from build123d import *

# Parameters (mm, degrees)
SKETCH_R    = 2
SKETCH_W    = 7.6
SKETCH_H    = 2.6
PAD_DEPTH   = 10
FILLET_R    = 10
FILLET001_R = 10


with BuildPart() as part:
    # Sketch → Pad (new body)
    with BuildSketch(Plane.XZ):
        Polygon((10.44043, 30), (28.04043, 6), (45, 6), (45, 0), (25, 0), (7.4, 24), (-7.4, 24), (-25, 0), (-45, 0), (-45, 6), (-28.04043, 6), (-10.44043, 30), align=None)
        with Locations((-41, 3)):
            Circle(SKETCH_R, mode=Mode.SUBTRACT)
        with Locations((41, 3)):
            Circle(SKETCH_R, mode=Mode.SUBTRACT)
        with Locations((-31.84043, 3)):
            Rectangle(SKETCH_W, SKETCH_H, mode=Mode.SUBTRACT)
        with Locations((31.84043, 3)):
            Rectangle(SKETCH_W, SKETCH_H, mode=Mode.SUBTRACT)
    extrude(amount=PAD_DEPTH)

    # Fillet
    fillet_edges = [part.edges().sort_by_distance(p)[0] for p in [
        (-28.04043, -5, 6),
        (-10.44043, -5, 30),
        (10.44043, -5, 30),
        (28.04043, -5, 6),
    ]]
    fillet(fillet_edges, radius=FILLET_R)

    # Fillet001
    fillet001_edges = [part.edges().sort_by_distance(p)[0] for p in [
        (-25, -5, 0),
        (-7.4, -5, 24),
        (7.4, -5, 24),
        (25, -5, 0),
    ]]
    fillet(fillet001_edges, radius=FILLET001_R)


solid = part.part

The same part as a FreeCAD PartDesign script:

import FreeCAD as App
import Part
import Sketcher


def edges_at(feature, points):
    """Names of the edges that pass closest to the given points."""
    edges = feature.Shape.Edges
    near = lambda p: min(range(len(edges)), key=lambda i: edges[i].distToShape(Part.Vertex(*p))[0])
    return sorted({f"Edge{near(p) + 1}" for p in points})

doc = App.newDocument("Part")
params = doc.addObject("Spreadsheet::Sheet", "Params")
for row, (alias, value) in enumerate([
    ("sketch1_diameter", "4 mm"),
    ("sketch1_width", "20 mm"),
    ("sketch1_height", "6 mm"),
    ("sketch1_width2", "14.8 mm"),
    ("sketch1_width3", "7.6 mm"),
    ("pad1_length", "10 mm"),
    ("fillet_radius", "10 mm"),
    ("fillet2_radius", "10 mm"),
], start=1):
    params.set(f"A{row}", alias)
    params.set(f"B{row}", "=" + value)
    params.setAlias(f"B{row}", alias)

body = doc.addObject("PartDesign::Body", "Body")

# Sketch on XZ plane
sketch1 = body.newObject("Sketcher::SketchObject", "Sketch")
sketch1.AttachmentSupport = (doc.getObject("XZ_Plane"), [""])
sketch1.MapMode = "FlatFace"
sketch1.addGeometry([
    Part.LineSegment(App.Vector(28, 6, 0), App.Vector(10.4, 30, 0)),  # 0
    Part.LineSegment(App.Vector(10.4, 30, 0), App.Vector(-10.4, 30, 0)),  # 1
    Part.LineSegment(App.Vector(-10.4, 30, 0), App.Vector(-28, 6, 0)),  # 2
    Part.LineSegment(App.Vector(-28, 6, 0), App.Vector(-45, 6, 0)),  # 3
    Part.LineSegment(App.Vector(-45, 6, 0), App.Vector(-45, 0, 0)),  # 4
    Part.LineSegment(App.Vector(-45, 0, 0), App.Vector(-25, 0, 0)),  # 5
    Part.LineSegment(App.Vector(-25, 0, 0), App.Vector(-7.4, 24, 0)),  # 6
    Part.LineSegment(App.Vector(-7.4, 24, 0), App.Vector(7.4, 24, 0)),  # 7
    Part.LineSegment(App.Vector(7.4, 24, 0), App.Vector(25, 0, 0)),  # 8
    Part.LineSegment(App.Vector(25, 0, 0), App.Vector(45, 0, 0)),  # 9
    Part.LineSegment(App.Vector(45, 0, 0), App.Vector(45, 6, 0)),  # 10
    Part.LineSegment(App.Vector(45, 6, 0), App.Vector(28, 6, 0)),  # 11
    Part.Circle(App.Vector(41, 3, 0), App.Vector(0, 0, 1), 2),  # 12
    Part.LineSegment(App.Vector(28, 1.7, 0), App.Vector(28, 4.3, 0)),  # 13
    Part.LineSegment(App.Vector(28, 4.3, 0), App.Vector(35.6, 4.3, 0)),  # 14
    Part.LineSegment(App.Vector(35.6, 4.3, 0), App.Vector(35.6, 1.7, 0)),  # 15
    Part.LineSegment(App.Vector(35.6, 1.7, 0), App.Vector(28, 1.7, 0)),  # 16
    Part.LineSegment(App.Vector(-35.6, 1.7, 0), App.Vector(-35.6, 4.3, 0)),  # 17
    Part.LineSegment(App.Vector(-35.6, 4.3, 0), App.Vector(-28, 4.3, 0)),  # 18
    Part.LineSegment(App.Vector(-28, 4.3, 0), App.Vector(-28, 1.7, 0)),  # 19
    Part.LineSegment(App.Vector(-28, 1.7, 0), App.Vector(-35.6, 1.7, 0)),  # 20
    Part.Circle(App.Vector(-41, 3, 0), App.Vector(0, 0, 1), 2),  # 21
], False)
sketch1.addConstraint([
    Sketcher.Constraint("Coincident", 0, 2, 1, 1),
    Sketcher.Constraint("Coincident", 1, 2, 2, 1),
    Sketcher.Constraint("Coincident", 2, 2, 3, 1),
    Sketcher.Constraint("Coincident", 3, 2, 4, 1),
    Sketcher.Constraint("Coincident", 4, 2, 5, 1),
    Sketcher.Constraint("Coincident", 5, 2, 6, 1),
    Sketcher.Constraint("Coincident", 6, 2, 7, 1),
    Sketcher.Constraint("Coincident", 7, 2, 8, 1),
    Sketcher.Constraint("Coincident", 8, 2, 9, 1),
    Sketcher.Constraint("Coincident", 9, 2, 10, 1),
    Sketcher.Constraint("Coincident", 10, 2, 11, 1),
    Sketcher.Constraint("Coincident", 11, 2, 0, 1),
    Sketcher.Constraint("Coincident", 13, 2, 14, 1),
    Sketcher.Constraint("Coincident", 14, 2, 15, 1),
    Sketcher.Constraint("Coincident", 15, 2, 16, 1),
    Sketcher.Constraint("Coincident", 16, 2, 13, 1),
    Sketcher.Constraint("Coincident", 17, 2, 18, 1),
    Sketcher.Constraint("Coincident", 18, 2, 19, 1),
    Sketcher.Constraint("Coincident", 19, 2, 20, 1),
    Sketcher.Constraint("Coincident", 20, 2, 17, 1),
    Sketcher.Constraint("Horizontal", 1),
    Sketcher.Constraint("Horizontal", 3),
    Sketcher.Constraint("Vertical", 4),
    Sketcher.Constraint("Horizontal", 5),
    Sketcher.Constraint("Horizontal", 7),
    Sketcher.Constraint("Horizontal", 9),
    Sketcher.Constraint("Vertical", 10),
    Sketcher.Constraint("Horizontal", 11),
    Sketcher.Constraint("Vertical", 13),
    Sketcher.Constraint("Horizontal", 14),
    Sketcher.Constraint("Vertical", 15),
    Sketcher.Constraint("Horizontal", 16),
    Sketcher.Constraint("Vertical", 17),
    Sketcher.Constraint("Horizontal", 18),
    Sketcher.Constraint("Vertical", 19),
    Sketcher.Constraint("Horizontal", 20),
    Sketcher.Constraint("Equal", 12, 21),
    Sketcher.Constraint("Symmetric", 5, 2, 8, 2, -1, 1),
    Sketcher.Constraint("Symmetric", 12, 3, 21, 3, -2),
    Sketcher.Constraint("Symmetric", 4, 2, 9, 2, -2),
    Sketcher.Constraint("Symmetric", 2, 2, 11, 2, -2),
    Sketcher.Constraint("Symmetric", 14, 2, 17, 2, -2),
    Sketcher.Constraint("Symmetric", 16, 2, 19, 2, -2),
    Sketcher.Constraint("Parallel", 2, 6),
    Sketcher.Constraint("Parallel", 0, 8),
    Sketcher.Constraint("Vertical", 11, 2, 13, 2),
    Sketcher.Constraint("Equal", 0, 2),
    Sketcher.Constraint("Equal", 2, 6),
    Sketcher.Constraint("Diameter", 12, 4.0),
    Sketcher.Constraint("DistanceX", 5, 1, 5, 2, 20.0),
    Sketcher.Constraint("DistanceY", 4, 2, 4, 1, 6.0),
    Sketcher.Constraint("DistanceX", 7, 1, 7, 2, 14.8),
    Sketcher.Constraint("DistanceX", 14, 1, 14, 2, 7.6),
    Sketcher.Constraint("DistanceY", 13, 1, 13, 2, 2.6),
    Sketcher.Constraint("DistanceX", -1, 1, 12, 3, 41.0),
    Sketcher.Constraint("DistanceY", -1, 1, 12, 3, 3.0),
    Sketcher.Constraint("DistanceY", -1, 1, 0, 2, 30.0),
    Sketcher.Constraint("DistanceX", 3, 2, -1, 1, 45.0),
    Sketcher.Constraint("DistanceY", -1, 1, 13, 2, 4.3),
    Sketcher.Constraint("DistanceX", 1, 2, 1, 1, 20.88086),
])
sketch1.setExpression("Constraints[48]", "Params.sketch1_diameter")
sketch1.setExpression("Constraints[49]", "Params.sketch1_width")
sketch1.setExpression("Constraints[50]", "Params.sketch1_height")
sketch1.setExpression("Constraints[51]", "Params.sketch1_width2")
sketch1.setExpression("Constraints[52]", "Params.sketch1_width3")
pad1 = body.newObject("PartDesign::Pad", "Pad")
pad1.Profile = sketch1
pad1.setExpression("Length", "Params.pad1_length")
doc.recompute()

fillet = body.newObject("PartDesign::Fillet", "Fillet")
fillet.Base = (pad1, edges_at(pad1, [
    (-28.04, -5, 6),
    (-10.44, -5, 30),
    (10.44, -5, 30),
    (28.04, -5, 6),
]))
fillet.setExpression("Radius", "Params.fillet_radius")
doc.recompute()

fillet2 = body.newObject("PartDesign::Fillet", "Fillet001")
fillet2.Base = (fillet, edges_at(fillet, [
    (-25, -5, 0),
    (-7.4, -5, 24),
    (7.4, -5, 24),
    (25, -5, 0),
]))
fillet2.setExpression("Radius", "Params.fillet2_radius")

doc.recompute()
